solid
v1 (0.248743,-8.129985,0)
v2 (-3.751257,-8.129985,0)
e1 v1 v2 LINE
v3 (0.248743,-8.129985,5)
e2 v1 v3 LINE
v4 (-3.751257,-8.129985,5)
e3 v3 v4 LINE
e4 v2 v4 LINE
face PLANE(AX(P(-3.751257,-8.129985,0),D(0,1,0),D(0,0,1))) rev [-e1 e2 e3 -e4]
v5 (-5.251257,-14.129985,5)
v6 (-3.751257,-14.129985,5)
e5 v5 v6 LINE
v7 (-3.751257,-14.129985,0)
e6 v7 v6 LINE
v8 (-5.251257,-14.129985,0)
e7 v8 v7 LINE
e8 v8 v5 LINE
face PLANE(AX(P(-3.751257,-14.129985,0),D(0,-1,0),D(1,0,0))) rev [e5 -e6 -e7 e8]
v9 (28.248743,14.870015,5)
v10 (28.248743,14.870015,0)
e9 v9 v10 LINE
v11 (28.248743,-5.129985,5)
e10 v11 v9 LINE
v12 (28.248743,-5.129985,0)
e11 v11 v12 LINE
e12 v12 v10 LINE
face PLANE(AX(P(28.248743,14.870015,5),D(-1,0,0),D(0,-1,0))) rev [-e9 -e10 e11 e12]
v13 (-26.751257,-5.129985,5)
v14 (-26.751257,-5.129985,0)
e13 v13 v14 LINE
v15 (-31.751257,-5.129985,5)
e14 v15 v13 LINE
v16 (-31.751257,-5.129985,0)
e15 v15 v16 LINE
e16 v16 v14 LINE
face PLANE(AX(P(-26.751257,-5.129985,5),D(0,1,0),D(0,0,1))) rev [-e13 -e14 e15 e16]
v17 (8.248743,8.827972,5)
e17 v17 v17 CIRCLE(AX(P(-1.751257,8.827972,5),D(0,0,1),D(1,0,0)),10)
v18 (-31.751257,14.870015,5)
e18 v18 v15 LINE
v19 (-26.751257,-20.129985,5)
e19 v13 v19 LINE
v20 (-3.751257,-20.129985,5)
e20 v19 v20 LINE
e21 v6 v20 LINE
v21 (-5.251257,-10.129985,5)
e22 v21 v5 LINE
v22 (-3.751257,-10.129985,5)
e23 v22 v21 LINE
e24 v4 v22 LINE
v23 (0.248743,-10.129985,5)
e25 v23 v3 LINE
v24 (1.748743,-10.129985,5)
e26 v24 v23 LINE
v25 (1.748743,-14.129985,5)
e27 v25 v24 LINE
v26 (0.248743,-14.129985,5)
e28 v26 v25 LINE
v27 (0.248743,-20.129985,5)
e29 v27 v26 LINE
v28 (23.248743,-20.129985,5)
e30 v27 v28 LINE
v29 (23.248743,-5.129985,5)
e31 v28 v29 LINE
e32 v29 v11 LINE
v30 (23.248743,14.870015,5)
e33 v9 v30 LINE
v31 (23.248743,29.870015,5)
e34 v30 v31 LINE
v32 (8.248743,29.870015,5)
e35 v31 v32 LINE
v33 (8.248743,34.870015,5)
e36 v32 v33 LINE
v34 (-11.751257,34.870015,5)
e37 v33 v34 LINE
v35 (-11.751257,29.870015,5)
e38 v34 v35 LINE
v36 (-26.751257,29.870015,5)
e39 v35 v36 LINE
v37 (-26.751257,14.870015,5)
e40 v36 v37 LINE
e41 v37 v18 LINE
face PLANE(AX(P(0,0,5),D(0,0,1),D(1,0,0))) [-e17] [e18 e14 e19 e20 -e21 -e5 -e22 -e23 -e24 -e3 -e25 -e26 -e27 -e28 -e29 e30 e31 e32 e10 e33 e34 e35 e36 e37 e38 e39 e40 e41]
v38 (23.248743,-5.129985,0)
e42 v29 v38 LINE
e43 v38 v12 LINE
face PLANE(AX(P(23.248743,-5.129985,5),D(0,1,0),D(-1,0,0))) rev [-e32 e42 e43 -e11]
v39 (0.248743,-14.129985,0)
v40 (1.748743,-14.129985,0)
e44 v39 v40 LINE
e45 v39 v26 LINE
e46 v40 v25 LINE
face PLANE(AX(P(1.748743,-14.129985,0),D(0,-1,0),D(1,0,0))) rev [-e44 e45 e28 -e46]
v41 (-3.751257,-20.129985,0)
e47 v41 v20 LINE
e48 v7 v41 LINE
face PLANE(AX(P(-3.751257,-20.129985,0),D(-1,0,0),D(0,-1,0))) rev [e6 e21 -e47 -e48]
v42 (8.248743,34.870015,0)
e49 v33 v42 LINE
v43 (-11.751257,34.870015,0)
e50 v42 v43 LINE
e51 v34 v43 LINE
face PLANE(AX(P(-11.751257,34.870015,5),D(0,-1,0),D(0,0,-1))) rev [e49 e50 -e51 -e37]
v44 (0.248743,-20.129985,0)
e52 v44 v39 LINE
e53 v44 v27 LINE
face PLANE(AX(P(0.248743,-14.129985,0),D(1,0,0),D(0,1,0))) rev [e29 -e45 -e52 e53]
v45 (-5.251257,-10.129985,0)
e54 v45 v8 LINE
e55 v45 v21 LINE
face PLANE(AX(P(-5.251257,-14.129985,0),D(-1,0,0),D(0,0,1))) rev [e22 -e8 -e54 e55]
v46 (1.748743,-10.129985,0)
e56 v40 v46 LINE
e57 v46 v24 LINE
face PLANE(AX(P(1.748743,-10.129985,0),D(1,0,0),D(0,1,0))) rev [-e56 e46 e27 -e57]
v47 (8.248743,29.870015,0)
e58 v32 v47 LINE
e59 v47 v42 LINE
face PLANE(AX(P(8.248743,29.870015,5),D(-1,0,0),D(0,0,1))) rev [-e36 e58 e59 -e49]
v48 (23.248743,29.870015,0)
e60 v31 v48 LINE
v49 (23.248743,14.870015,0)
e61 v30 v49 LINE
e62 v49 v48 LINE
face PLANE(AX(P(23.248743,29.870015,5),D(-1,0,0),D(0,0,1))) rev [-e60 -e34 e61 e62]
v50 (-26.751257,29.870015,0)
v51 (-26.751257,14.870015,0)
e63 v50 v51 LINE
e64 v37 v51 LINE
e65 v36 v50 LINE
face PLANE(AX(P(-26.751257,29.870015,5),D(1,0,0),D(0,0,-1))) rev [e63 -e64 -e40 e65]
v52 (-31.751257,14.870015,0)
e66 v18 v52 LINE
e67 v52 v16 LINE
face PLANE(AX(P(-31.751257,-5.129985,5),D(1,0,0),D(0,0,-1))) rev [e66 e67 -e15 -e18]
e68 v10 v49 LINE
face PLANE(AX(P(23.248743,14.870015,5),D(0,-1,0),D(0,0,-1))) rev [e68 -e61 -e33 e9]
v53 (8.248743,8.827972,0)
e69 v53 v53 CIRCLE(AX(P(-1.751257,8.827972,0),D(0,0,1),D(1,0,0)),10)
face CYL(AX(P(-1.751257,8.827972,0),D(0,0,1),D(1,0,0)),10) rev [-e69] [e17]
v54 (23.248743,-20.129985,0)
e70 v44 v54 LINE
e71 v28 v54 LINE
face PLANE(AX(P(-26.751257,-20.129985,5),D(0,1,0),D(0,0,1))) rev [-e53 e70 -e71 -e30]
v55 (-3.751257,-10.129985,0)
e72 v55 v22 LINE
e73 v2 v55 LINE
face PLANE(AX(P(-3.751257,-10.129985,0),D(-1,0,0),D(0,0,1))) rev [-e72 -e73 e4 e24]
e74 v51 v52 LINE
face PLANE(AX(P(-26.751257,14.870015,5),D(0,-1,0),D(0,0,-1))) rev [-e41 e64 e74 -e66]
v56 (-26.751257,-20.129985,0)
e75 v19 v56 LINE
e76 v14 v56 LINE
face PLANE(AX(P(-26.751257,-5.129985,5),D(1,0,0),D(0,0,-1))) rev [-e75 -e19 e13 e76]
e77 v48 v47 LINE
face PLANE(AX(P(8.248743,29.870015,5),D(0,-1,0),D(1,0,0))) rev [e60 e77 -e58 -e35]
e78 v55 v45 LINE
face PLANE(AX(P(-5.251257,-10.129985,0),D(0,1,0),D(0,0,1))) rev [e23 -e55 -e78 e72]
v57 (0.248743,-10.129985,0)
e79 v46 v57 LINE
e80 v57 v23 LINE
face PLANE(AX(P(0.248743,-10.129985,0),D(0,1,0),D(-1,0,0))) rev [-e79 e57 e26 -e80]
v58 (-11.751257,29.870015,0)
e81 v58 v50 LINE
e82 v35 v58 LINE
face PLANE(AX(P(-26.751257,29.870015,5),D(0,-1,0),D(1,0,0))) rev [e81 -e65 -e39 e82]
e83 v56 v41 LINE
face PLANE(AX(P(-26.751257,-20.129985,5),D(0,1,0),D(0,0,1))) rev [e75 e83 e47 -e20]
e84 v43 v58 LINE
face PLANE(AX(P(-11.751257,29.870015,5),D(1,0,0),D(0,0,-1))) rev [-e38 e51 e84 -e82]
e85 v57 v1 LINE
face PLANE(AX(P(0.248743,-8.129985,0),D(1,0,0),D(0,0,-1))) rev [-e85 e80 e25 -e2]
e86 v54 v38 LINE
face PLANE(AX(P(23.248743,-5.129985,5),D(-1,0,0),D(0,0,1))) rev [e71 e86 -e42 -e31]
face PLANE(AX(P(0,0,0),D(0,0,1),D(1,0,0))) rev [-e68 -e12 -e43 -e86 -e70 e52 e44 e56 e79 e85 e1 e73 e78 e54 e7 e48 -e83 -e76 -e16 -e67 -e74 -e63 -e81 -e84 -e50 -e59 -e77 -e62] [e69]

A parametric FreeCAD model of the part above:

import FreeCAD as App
import Part
import Sketcher

V = App.Vector

doc = App.newDocument("Part")
body = doc.addObject("PartDesign::Body", "Body")

# Sketch on XY plane
sketch1 = body.newObject("Sketcher::SketchObject", "Sketch")
sketch1.AttachmentSupport = (doc.getObject("XY_Plane"), [""])
sketch1.MapMode = "FlatFace"
sketch1.addGeometry([
    Part.LineSegment(V(-12, 30, 0), V(-27, 30, 0)),  # 0
    Part.LineSegment(V(-27, 30, 0), V(-27, 15, 0)),  # 1
    Part.LineSegment(V(-27, 15, 0), V(-32, 15, 0)),  # 2
    Part.LineSegment(V(-32, 15, 0), V(-32, -5, 0)),  # 3
    Part.LineSegment(V(-32, -5, 0), V(-27, -5, 0)),  # 4
    Part.LineSegment(V(-27, -5, 0), V(-27, -20, 0)),  # 5
    Part.LineSegment(V(-27, -20, 0), V(23, -20, 0)),  # 6
    Part.LineSegment(V(23, -20, 0), V(23, -5, 0)),  # 7
    Part.LineSegment(V(23, -5, 0), V(28, -5, 0)),  # 8
    Part.LineSegment(V(28, -5, 0), V(28, 15, 0)),  # 9
    Part.LineSegment(V(28, 15, 0), V(23, 15, 0)),  # 10
    Part.LineSegment(V(23, 15, 0), V(23, 30, 0)),  # 11
    Part.LineSegment(V(23, 30, 0), V(8, 30, 0)),  # 12
    Part.LineSegment(V(8, 30, 0), V(8, 35, 0)),  # 13
    Part.LineSegment(V(8, 35, 0), V(-12, 35, 0)),  # 14
    Part.LineSegment(V(-12, 35, 0), V(-12, 30, 0)),  # 15
], False)
sketch1.addConstraint([
    Sketcher.Constraint("Coincident", 0, 2, 1, 1),
    Sketcher.Constraint("Coincident", 1, 2, 2, 1),
    Sketcher.Constraint("Coincident", 2, 2, 3, 1),
    Sketcher.Constraint("Coincident", 3, 2, 4, 1),
    Sketcher.Constraint("Coincident", 4, 2, 5, 1),
    Sketcher.Constraint("Coincident", 5, 2, 6, 1),
    Sketcher.Constraint("Coincident", 6, 2, 7, 1),
    Sketcher.Constraint("Coincident", 7, 2, 8, 1),
    Sketcher.Constraint("Coincident", 8, 2, 9, 1),
    Sketcher.Constraint("Coincident", 9, 2, 10, 1),
    Sketcher.Constraint("Coincident", 10, 2, 11, 1),
    Sketcher.Constraint("Coincident", 11, 2, 12, 1),
    Sketcher.Constraint("Coincident", 12, 2, 13, 1),
    Sketcher.Constraint("Coincident", 13, 2, 14, 1),
    Sketcher.Constraint("Coincident", 14, 2, 15, 1),
    Sketcher.Constraint("Coincident", 15, 2, 0, 1),
    Sketcher.Constraint("Horizontal", 0),
    Sketcher.Constraint("Vertical", 1),
    Sketcher.Constraint("Horizontal", 2),
    Sketcher.Constraint("Vertical", 3),
    Sketcher.Constraint("Horizontal", 4),
    Sketcher.Constraint("Vertical", 5),
    Sketcher.Constraint("Horizontal", 6),
    Sketcher.Constraint("Vertical", 7),
    Sketcher.Constraint("Horizontal", 8),
    Sketcher.Constraint("Vertical", 9),
    Sketcher.Constraint("Horizontal", 10),
    Sketcher.Constraint("Vertical", 11),
    Sketcher.Constraint("Horizontal", 12),
    Sketcher.Constraint("Vertical", 13),
    Sketcher.Constraint("Horizontal", 14),
    Sketcher.Constraint("Vertical", 15),
    Sketcher.Constraint("Horizontal", 4, 2, 7, 2),
    Sketcher.Constraint("Horizontal", 2, 2, 9, 2),
    Sketcher.Constraint("Horizontal", 0, 2, 11, 2),
    Sketcher.Constraint("Vertical", 1, 2, 4, 2),
    Sketcher.Constraint("Vertical", 7, 2, 10, 2),
    Sketcher.Constraint("Equal", 4, 8),
    Sketcher.Constraint("Equal", 0, 12),
    Sketcher.Constraint("Equal", 12, 1),
    Sketcher.Constraint("Equal", 14, 3),
    Sketcher.Constraint("Equal", 1, 5),
    Sketcher.Constraint("Equal", 10, 13),
    Sketcher.Constraint("DistanceX", 0, 2, 0, 1, 15.0),
    Sketcher.Constraint("DistanceX", 2, 2, 2, 1, 5.0),
    Sketcher.Constraint("DistanceX", 6, 1, 6, 2, 50.0),
    Sketcher.Constraint("DistanceX", 0, 2, -1, 1, 26.751257),
    Sketcher.Constraint("DistanceY", -1, 1, 0, 2, 29.870015),
])
pad1 = body.newObject("PartDesign::Pad", "Pad")
pad1.Profile = sketch1
pad1.Length = 5

# Sketch on XY plane
sketch2 = body.newObject("Sketcher::SketchObject", "Sketch001")
sketch2.AttachmentSupport = (doc.getObject("XY_Plane"), [""])
sketch2.MapMode = "FlatFace"
sketch2.AttachmentOffset = App.Placement(V(0, 0, 5), App.Rotation())
sketch2.addGeometry([
    Part.Circle(V(-1.8, 8.8, 0), V(0, 0, 1), 10),  # 0
    Part.LineSegment(V(-3.8, -14.1, 0), V(-3.8, -20.1, 0)),  # 1
    Part.LineSegment(V(-3.8, -20.1, 0), V(0.2, -20.1, 0)),  # 2
    Part.LineSegment(V(0.2, -20.1, 0), V(0.2, -14.1, 0)),  # 3
    Part.LineSegment(V(0.2, -14.1, 0), V(1.7, -14.1, 0)),  # 4
    Part.LineSegment(V(1.7, -14.1, 0), V(1.7, -10.1, 0)),  # 5
    Part.LineSegment(V(1.7, -10.1, 0), V(0.2, -10.1, 0)),  # 6
    Part.LineSegment(V(0.2, -10.1, 0), V(0.2, -8.1, 0)),  # 7
    Part.LineSegment(V(0.2, -8.1, 0), V(-3.8, -8.1, 0)),  # 8
    Part.LineSegment(V(-3.8, -8.1, 0), V(-3.8, -10.1, 0)),  # 9
    Part.LineSegment(V(-3.8, -10.1, 0), V(-5.3, -10.1, 0)),  # 10
    Part.LineSegment(V(-5.3, -10.1, 0), V(-5.3, -14.1, 0)),  # 11
    Part.LineSegment(V(-5.3, -14.1, 0), V(-3.8, -14.1, 0)),  # 12
], False)
sketch2.addConstraint([
    Sketcher.Constraint("Coincident", 1, 2, 2, 1),
    Sketcher.Constraint("Coincident", 2, 2, 3, 1),
    Sketcher.Constraint("Coincident", 3, 2, 4, 1),
    Sketcher.Constraint("Coincident", 4, 2, 5, 1),
    Sketcher.Constraint("Coincident", 5, 2, 6, 1),
    Sketcher.Constraint("Coincident", 6, 2, 7, 1),
    Sketcher.Constraint("Coincident", 7, 2, 8, 1),
    Sketcher.Constraint("Coincident", 8, 2, 9, 1),
    Sketcher.Constraint("Coincident", 9, 2, 10, 1),
    Sketcher.Constraint("Coincident", 10, 2, 11, 1),
    Sketcher.Constraint("Coincident", 11, 2, 12, 1),
    Sketcher.Constraint("Coincident", 12, 2, 1, 1),
    Sketcher.Constraint("Vertical", 1),
    Sketcher.Constraint("Horizontal", 2),
    Sketcher.Constraint("Vertical", 3),
    Sketcher.Constraint("Horizontal", 4),
    Sketcher.Constraint("Vertical", 5),
    Sketcher.Constraint("Horizontal", 6),
    Sketcher.Constraint("Vertical", 7),
    Sketcher.Constraint("Horizontal", 8),
    Sketcher.Constraint("Vertical", 9),
    Sketcher.Constraint("Horizontal", 10),
    Sketcher.Constraint("Vertical", 11),
    Sketcher.Constraint("Horizontal", 12),
    Sketcher.Constraint("Horizontal", 6, 2, 9, 2),
    Sketcher.Constraint("Horizontal", 4, 2, 11, 2),
    Sketcher.Constraint("Vertical", 3, 2, 6, 2),
    Sketcher.Constraint("Vertical", 1, 2, 8, 2),
    Sketcher.Constraint("Equal", 6, 10),
    Sketcher.Constraint("Equal", 8, 5),
    Sketcher.Constraint("Diameter", 0, 20.0),
    Sketcher.Constraint("DistanceX", 2, 1, 2, 2, 4.0),
    Sketcher.Constraint("DistanceY", 1, 2, 1, 1, 6.0),
    Sketcher.Constraint("DistanceY", 7, 1, 7, 2, 2.0),
    Sketcher.Constraint("DistanceX", 4, 1, 4, 2, 1.5),
    Sketcher.Constraint("DistanceX", 1, 2, 0, 3, 2.0),
    Sketcher.Constraint("DistanceX", 0, 3, -1, 1, 1.751257),
    Sketcher.Constraint("DistanceY", -1, 1, 0, 3, 8.827972),
    Sketcher.Constraint("DistanceY", 1, 2, -1, 1, 20.129985),
])
pocket1 = body.newObject("PartDesign::Pocket", "Pocket")
pocket1.Profile = sketch2
pocket1.Length = 5

doc.recompute()
